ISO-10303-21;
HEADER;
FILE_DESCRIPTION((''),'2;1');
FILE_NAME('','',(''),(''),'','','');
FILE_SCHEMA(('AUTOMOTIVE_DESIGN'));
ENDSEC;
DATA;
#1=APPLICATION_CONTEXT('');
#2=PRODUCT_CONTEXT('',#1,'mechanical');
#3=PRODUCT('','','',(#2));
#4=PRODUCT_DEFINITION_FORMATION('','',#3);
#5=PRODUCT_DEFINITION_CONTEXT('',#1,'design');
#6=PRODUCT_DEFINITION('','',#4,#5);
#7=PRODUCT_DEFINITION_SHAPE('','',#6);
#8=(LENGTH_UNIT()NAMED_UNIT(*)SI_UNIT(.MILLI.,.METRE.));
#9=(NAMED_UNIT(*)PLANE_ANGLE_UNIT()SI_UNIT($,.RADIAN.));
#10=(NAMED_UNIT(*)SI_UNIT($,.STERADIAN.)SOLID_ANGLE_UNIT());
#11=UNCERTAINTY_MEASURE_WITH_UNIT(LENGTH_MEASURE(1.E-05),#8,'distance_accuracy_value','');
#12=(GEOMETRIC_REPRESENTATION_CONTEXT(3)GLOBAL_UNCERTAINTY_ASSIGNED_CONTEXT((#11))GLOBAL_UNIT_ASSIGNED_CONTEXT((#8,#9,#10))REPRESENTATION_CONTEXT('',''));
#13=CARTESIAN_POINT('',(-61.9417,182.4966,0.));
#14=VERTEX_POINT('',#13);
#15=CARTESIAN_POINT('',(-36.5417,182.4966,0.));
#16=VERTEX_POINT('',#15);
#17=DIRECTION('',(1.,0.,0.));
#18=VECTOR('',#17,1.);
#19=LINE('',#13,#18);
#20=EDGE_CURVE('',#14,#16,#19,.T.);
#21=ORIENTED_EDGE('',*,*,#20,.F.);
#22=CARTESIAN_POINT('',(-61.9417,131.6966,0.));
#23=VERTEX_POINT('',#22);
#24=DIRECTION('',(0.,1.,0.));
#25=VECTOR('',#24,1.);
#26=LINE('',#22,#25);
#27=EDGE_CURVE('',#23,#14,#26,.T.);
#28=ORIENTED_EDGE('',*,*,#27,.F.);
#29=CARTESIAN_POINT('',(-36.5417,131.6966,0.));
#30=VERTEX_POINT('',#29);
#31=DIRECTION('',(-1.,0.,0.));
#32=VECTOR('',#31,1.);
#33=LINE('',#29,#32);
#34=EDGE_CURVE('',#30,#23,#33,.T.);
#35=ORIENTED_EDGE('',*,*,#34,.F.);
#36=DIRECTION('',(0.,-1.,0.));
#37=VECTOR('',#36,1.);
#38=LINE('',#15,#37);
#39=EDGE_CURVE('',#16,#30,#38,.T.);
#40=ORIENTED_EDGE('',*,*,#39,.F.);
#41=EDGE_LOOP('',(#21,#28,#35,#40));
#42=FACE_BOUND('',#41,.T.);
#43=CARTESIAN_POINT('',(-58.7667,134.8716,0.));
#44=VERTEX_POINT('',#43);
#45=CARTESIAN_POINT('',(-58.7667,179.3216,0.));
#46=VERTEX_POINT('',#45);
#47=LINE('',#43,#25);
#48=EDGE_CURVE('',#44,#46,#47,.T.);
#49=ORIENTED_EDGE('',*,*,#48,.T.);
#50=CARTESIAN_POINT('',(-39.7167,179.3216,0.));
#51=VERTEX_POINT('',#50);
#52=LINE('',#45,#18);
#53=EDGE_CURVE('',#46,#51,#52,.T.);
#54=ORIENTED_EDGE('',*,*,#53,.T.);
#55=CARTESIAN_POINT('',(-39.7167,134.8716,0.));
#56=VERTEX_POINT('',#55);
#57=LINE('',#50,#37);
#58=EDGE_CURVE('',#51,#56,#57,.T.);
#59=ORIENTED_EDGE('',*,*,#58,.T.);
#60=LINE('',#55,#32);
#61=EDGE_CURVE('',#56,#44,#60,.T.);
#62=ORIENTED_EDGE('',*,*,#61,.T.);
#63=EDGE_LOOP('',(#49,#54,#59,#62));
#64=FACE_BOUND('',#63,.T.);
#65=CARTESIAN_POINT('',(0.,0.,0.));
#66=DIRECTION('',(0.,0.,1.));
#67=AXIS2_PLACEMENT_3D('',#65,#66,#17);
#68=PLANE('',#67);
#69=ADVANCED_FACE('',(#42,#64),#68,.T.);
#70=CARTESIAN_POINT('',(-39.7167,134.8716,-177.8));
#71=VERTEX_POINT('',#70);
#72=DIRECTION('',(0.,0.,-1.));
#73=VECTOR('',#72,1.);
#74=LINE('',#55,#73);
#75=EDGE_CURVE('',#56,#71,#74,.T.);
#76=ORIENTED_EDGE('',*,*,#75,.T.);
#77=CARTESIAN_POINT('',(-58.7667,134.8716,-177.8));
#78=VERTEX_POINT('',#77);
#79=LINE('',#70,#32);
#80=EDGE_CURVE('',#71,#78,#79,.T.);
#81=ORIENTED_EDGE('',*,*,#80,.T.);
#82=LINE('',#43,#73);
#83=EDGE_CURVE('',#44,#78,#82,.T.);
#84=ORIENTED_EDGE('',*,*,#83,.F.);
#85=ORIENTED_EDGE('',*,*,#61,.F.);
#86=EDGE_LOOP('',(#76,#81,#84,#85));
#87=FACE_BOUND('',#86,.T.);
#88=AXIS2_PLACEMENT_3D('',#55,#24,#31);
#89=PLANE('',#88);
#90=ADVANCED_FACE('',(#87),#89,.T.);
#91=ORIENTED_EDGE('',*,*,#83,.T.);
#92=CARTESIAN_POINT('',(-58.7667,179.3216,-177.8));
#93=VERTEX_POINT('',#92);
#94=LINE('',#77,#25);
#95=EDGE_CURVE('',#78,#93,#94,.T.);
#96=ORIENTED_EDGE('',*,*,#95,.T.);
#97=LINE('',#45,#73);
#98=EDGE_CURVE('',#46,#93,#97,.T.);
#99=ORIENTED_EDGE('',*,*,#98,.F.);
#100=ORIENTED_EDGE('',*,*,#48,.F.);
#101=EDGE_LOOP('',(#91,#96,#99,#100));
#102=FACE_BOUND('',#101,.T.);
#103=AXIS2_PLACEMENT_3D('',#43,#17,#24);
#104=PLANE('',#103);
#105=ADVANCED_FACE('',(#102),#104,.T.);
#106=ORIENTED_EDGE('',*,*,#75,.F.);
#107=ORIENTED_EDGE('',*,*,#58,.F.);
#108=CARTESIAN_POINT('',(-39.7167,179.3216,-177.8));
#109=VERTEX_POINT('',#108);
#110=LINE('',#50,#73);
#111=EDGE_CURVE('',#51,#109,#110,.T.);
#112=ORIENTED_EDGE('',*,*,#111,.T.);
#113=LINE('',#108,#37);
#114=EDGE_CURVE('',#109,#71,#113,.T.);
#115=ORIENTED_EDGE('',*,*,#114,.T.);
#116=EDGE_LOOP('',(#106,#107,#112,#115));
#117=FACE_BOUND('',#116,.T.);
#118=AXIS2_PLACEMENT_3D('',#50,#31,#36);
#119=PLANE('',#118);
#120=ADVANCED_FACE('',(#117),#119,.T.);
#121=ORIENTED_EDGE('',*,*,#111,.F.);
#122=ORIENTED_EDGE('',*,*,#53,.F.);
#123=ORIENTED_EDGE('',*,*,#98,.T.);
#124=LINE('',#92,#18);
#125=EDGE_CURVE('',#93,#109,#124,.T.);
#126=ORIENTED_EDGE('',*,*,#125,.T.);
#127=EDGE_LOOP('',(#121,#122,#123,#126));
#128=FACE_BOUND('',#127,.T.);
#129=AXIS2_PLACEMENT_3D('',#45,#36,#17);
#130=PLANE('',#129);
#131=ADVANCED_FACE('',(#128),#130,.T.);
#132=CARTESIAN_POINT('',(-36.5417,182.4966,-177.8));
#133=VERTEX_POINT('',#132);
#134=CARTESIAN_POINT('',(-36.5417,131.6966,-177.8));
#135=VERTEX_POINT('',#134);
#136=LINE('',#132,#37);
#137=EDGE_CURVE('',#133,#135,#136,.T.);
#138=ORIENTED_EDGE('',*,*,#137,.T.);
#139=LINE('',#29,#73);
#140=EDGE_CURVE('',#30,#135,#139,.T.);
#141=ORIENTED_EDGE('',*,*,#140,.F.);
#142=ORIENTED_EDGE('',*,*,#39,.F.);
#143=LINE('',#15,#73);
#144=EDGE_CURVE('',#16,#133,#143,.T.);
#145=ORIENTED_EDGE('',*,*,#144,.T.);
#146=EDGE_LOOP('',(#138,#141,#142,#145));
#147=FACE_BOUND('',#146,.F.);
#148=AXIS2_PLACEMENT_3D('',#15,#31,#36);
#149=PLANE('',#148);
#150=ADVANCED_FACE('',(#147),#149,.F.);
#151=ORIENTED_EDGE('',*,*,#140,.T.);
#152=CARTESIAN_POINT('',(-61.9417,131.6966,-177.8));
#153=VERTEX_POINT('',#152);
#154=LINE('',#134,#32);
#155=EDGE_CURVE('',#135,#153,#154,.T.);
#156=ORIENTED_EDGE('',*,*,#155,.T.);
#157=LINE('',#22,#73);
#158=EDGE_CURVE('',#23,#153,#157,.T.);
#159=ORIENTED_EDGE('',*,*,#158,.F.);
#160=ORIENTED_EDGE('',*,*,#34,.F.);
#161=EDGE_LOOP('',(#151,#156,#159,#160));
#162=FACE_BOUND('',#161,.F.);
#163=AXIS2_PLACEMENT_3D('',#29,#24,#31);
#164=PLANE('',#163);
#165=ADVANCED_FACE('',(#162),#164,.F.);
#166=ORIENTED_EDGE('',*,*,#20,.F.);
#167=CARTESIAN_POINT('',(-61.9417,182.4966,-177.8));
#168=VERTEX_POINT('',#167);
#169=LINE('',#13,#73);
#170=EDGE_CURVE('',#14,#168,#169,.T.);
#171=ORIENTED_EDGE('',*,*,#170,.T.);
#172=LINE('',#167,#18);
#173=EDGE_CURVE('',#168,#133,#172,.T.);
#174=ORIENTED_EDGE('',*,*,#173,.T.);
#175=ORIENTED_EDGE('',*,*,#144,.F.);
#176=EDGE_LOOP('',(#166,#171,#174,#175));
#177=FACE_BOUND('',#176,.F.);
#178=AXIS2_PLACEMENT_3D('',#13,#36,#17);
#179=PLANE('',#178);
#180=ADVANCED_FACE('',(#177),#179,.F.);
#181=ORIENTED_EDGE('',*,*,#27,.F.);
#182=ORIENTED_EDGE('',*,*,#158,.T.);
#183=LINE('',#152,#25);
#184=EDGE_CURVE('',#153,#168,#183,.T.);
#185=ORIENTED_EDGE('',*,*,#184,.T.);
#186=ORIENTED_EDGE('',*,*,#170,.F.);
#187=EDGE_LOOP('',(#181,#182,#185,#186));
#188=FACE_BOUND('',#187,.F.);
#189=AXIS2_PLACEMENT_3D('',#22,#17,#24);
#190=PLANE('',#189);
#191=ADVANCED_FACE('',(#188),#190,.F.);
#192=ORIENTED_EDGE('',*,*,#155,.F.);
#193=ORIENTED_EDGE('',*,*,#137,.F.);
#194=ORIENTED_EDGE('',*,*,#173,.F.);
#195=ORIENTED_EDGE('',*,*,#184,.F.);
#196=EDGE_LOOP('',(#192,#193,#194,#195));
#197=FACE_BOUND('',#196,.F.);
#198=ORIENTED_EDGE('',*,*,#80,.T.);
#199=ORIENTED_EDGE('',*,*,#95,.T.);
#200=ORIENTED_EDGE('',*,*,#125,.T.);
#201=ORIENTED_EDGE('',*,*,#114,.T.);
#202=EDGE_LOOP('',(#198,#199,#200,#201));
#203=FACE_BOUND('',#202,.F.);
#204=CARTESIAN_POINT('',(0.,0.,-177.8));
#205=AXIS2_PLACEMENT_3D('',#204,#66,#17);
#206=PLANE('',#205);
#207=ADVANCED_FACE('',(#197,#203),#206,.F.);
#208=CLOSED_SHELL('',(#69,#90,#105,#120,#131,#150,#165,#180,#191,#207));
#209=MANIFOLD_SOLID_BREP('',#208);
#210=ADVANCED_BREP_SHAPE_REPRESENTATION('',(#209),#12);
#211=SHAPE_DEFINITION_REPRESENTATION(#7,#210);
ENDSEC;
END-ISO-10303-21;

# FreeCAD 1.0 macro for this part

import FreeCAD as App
import Part
import Sketcher
from FreeCAD import Vector
Q = App.Units.Quantity

doc = App.newDocument("Part")
body = doc.addObject("PartDesign::Body", "Body")

sketch1 = body.newObject("Sketcher::SketchObject", "Sketch")
sketch1.AttachmentSupport = (doc.getObject("XY_Plane"), [""])
sketch1.MapMode = "FlatFace"
sketch1.addGeometry([
    Part.LineSegment(Vector(-36.5417, 182.4966, 0), Vector(-61.9417, 182.4966, 0)),
    Part.LineSegment(Vector(-61.9417, 182.4966, 0), Vector(-61.9417, 131.6966, 0)),
    Part.LineSegment(Vector(-61.9417, 131.6966, 0), Vector(-36.5417, 131.6966, 0)),
    Part.LineSegment(Vector(-36.5417, 131.6966, 0), Vector(-36.5417, 182.4966, 0)),
    Part.LineSegment(Vector(-58.7667, 134.8716, 0), Vector(-58.7667, 179.3216, 0)),
    Part.LineSegment(Vector(-58.7667, 179.3216, 0), Vector(-39.7167, 179.3216, 0)),
    Part.LineSegment(Vector(-39.7167, 179.3216, 0), Vector(-39.7167, 134.8716, 0)),
    Part.LineSegment(Vector(-39.7167, 134.8716, 0), Vector(-58.7667, 134.8716, 0)),
], False)
sketch1.addConstraint([
    Sketcher.Constraint("Coincident", 0, 2, 1, 1),
    Sketcher.Constraint("Coincident", 1, 2, 2, 1),
    Sketcher.Constraint("Coincident", 2, 2, 3, 1),
    Sketcher.Constraint("Coincident", 3, 2, 0, 1),
    Sketcher.Constraint("Coincident", 4, 2, 5, 1),
    Sketcher.Constraint("Coincident", 5, 2, 6, 1),
    Sketcher.Constraint("Coincident", 6, 2, 7, 1),
    Sketcher.Constraint("Coincident", 7, 2, 4, 1),
    Sketcher.Constraint("Horizontal", 0),
    Sketcher.Constraint("Vertical", 1),
    Sketcher.Constraint("Horizontal", 2),
    Sketcher.Constraint("Vertical", 3),
    Sketcher.Constraint("Vertical", 4),
    Sketcher.Constraint("Horizontal", 5),
    Sketcher.Constraint("Vertical", 6),
    Sketcher.Constraint("Horizontal", 7),
    Sketcher.Constraint("DistanceX", 0, 2, 0, 1, Q("1 in")),
    Sketcher.Constraint("DistanceY", 1, 2, 1, 1, Q("2 in")),
    Sketcher.Constraint("DistanceX", 0, 2, 4, 2, Q("0.125 in")),
    Sketcher.Constraint("DistanceY", 4, 2, 0, 2, Q("0.125 in")),
    Sketcher.Constraint("DistanceX", 5, 2, 3, 2, Q("0.125 in")),
    Sketcher.Constraint("DistanceY", 2, 2, 6, 2, Q("0.125 in")),
    Sketcher.Constraint("DistanceY", -1, 1, 0, 2, Q("7.1849 in")),
    Sketcher.Constraint("DistanceX", 0, 2, -1, 1, 61.9417),
])
pad1 = body.newObject("PartDesign::Pad", "Pad")
pad1.Profile = sketch1
pad1.Length = Q("7 in")
pad1.Reversed = True

doc.recompute()
